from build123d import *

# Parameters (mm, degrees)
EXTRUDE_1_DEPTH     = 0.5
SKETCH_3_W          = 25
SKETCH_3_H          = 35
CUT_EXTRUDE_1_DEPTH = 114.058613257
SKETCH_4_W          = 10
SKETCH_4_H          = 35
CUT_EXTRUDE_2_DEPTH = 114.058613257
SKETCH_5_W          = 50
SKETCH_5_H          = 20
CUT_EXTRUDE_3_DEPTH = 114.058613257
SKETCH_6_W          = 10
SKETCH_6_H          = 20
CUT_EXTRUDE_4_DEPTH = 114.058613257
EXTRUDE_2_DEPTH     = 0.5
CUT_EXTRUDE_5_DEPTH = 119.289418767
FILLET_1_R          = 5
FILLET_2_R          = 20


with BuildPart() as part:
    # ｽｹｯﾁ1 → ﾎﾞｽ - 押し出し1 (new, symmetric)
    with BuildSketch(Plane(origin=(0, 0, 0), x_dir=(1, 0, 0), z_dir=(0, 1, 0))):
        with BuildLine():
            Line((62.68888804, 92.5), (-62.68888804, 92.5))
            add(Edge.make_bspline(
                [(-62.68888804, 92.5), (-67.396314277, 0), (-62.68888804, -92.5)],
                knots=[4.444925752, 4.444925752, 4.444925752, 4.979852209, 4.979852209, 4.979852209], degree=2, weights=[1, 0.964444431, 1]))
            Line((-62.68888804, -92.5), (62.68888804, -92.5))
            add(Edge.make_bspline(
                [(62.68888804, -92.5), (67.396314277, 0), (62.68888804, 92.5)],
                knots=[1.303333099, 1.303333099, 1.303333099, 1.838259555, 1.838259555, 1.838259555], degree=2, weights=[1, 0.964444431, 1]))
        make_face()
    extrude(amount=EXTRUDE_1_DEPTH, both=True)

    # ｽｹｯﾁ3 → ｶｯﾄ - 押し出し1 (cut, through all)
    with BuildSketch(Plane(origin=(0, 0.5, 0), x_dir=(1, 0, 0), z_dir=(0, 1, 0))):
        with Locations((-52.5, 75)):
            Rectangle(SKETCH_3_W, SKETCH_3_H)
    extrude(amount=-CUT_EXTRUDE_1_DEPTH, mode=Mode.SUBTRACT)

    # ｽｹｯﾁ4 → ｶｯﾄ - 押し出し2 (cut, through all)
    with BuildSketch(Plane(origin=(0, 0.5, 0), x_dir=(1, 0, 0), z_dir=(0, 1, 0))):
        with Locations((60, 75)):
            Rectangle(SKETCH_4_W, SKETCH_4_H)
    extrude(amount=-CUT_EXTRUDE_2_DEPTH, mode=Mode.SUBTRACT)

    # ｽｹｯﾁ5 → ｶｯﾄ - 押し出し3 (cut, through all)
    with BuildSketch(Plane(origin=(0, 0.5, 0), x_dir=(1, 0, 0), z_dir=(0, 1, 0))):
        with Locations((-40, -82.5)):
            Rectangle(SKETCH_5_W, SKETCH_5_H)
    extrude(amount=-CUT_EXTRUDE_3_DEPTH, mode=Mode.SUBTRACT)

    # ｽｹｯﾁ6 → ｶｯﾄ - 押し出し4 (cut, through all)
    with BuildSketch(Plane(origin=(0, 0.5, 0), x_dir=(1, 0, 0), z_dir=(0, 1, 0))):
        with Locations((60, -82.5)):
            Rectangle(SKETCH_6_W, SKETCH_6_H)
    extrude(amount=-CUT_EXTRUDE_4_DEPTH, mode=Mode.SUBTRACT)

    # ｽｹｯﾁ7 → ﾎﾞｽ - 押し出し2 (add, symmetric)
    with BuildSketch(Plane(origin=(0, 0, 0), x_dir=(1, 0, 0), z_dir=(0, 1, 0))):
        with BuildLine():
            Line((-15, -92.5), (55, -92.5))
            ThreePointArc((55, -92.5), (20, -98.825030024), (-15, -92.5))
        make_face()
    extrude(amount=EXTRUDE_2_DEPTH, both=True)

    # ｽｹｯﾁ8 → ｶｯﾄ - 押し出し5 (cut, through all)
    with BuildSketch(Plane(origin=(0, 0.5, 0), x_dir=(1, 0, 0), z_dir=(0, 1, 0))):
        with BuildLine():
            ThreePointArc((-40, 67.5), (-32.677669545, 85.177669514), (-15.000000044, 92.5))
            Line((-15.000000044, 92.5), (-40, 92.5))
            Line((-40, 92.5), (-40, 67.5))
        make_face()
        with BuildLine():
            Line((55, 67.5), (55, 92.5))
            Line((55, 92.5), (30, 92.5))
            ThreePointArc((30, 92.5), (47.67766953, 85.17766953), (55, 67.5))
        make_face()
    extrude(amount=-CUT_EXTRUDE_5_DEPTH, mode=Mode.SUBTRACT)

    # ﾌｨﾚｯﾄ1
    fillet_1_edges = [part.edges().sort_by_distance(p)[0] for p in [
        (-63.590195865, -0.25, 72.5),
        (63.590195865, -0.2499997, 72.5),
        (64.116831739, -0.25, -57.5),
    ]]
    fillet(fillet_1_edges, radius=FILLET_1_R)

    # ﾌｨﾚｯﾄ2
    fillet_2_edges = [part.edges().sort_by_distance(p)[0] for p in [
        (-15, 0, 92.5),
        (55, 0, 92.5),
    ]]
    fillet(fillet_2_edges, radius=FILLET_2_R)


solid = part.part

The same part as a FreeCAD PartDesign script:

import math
import FreeCAD as App
import Part
import Sketcher
from FreeCAD import Vector
Q = App.Units.Quantity


def edges_at(feature, points):
    """Names of the edges that pass closest to the given points."""
    edges = feature.Shape.Edges
    near = lambda p: min(range(len(edges)), key=lambda i: edges[i].distToShape(Part.Vertex(*p))[0])
    return sorted({f"Edge{near(p) + 1}" for p in points})

doc = App.newDocument("Part")
body = doc.addObject("PartDesign::Body", "Body")

# Sketch on XZ plane
sketch1 = doc.addObject("Sketcher::SketchObject", "Sketch")
body.addObject(sketch1)
sketch1.AttachmentSupport = (doc.XZ_Plane, [""])
sketch1.MapMode = "FlatFace"
sketch1.addGeometry([
    Part.LineSegment(Vector(62.688888, -92.5, 0), Vector(-62.688888, -92.5, 0)),
    Part.BSplineCurve([Vector(-62.688888, -92.5, 0), Vector(-67.396314, 0, 0), Vector(-62.688888, 92.5, 0)], [3, 3], [4.444925752, 4.979852209], False, 2, [1, 0.964444431, 1], False),
    Part.LineSegment(Vector(-62.688888, 92.5, 0), Vector(62.688888, 92.5, 0)),
    Part.BSplineCurve([Vector(62.688888, 92.5, 0), Vector(67.396314, 0, 0), Vector(62.688888, -92.5, 0)], [3, 3], [1.303333099, 1.838259555], False, 2, [1, 0.964444431, 1], False),
], False)
sketch1.addConstraint([
    Sketcher.Constraint("Block", 1),
    Sketcher.Constraint("Block", 3),
    Sketcher.Constraint("Coincident", 0, 2, 1, 1),
    Sketcher.Constraint("Coincident", 1, 2, 2, 1),
    Sketcher.Constraint("Coincident", 2, 2, 3, 1),
    Sketcher.Constraint("Coincident", 3, 2, 0, 1),
])
pad1 = doc.addObject("PartDesign::Pad", "Pad")
body.addObject(pad1)
pad1.Profile = sketch1
pad1.Length = 1
pad1.Midplane = True

# Sketch on XZ plane
sketch2 = doc.addObject("Sketcher::SketchObject", "Sketch001")
body.addObject(sketch2)
sketch2.AttachmentSupport = (doc.XZ_Plane, [""])
sketch2.MapMode = "FlatFace"
sketch2.AttachmentOffset = App.Placement(Vector(0, 0, -0.5), App.Rotation())
sketch2.addGeometry([
    Part.LineSegment(Vector(-65, -92, 0), Vector(-65, -58, 0)),
    Part.LineSegment(Vector(-65, -58, 0), Vector(-40, -58, 0)),
    Part.LineSegment(Vector(-40, -58, 0), Vector(-40, -92, 0)),
    Part.LineSegment(Vector(-40, -92, 0), Vector(-65, -92, 0)),
], False)
sketch2.addConstraint([
    Sketcher.Constraint("Coincident", 0, 2, 1, 1),
    Sketcher.Constraint("Coincident", 1, 2, 2, 1),
    Sketcher.Constraint("Coincident", 2, 2, 3, 1),
    Sketcher.Constraint("Coincident", 3, 2, 0, 1),
    Sketcher.Constraint("Vertical", 0),
    Sketcher.Constraint("Horizontal", 1),
    Sketcher.Constraint("Vertical", 2),
    Sketcher.Constraint("Horizontal", 3),
    Sketcher.Constraint("DistanceX", 1, 1, 1, 2, Q("25 mm")),
    Sketcher.Constraint("DistanceY", 0, 1, 0, 2, Q("35 mm")),
    Sketcher.Constraint("DistanceX", 0, 2, -1, 1, Q("65 mm")),
    Sketcher.Constraint("DistanceY", 0, 2, -1, 1, Q("57.5 mm")),
])
pocket1 = doc.addObject("PartDesign::Pocket", "Pocket")
body.addObject(pocket1)
pocket1.Profile = sketch2
pocket1.Type = "ThroughAll"
pocket1.Reversed = True

# Sketch on XZ plane
sketch3 = doc.addObject("Sketcher::SketchObject", "Sketch002")
body.addObject(sketch3)
sketch3.AttachmentSupport = (doc.XZ_Plane, [""])
sketch3.MapMode = "FlatFace"
sketch3.AttachmentOffset = App.Placement(Vector(0, 0, -0.5), App.Rotation())
sketch3.addGeometry([
    Part.LineSegment(Vector(55, -92, 0), Vector(55, -58, 0)),
    Part.LineSegment(Vector(55, -58, 0), Vector(65, -58, 0)),
    Part.LineSegment(Vector(65, -58, 0), Vector(65, -92, 0)),
    Part.LineSegment(Vector(65, -92, 0), Vector(55, -92, 0)),
], False)
sketch3.addConstraint([
    Sketcher.Constraint("Coincident", 0, 2, 1, 1),
    Sketcher.Constraint("Coincident", 1, 2, 2, 1),
    Sketcher.Constraint("Coincident", 2, 2, 3, 1),
    Sketcher.Constraint("Coincident", 3, 2, 0, 1),
    Sketcher.Constraint("Vertical", 0),
    Sketcher.Constraint("Horizontal", 1),
    Sketcher.Constraint("Vertical", 2),
    Sketcher.Constraint("Horizontal", 3),
    Sketcher.Constraint("DistanceX", 1, 1, 1, 2, Q("10 mm")),
    Sketcher.Constraint("DistanceY", 0, 1, 0, 2, Q("35 mm")),
    Sketcher.Constraint("DistanceX", -1, 1, 0, 2, Q("55 mm")),
    Sketcher.Constraint("DistanceY", 0, 2, -1, 1, Q("57.5 mm")),
])
pocket2 = doc.addObject("PartDesign::Pocket", "Pocket001")
body.addObject(pocket2)
pocket2.Profile = sketch3
pocket2.Type = "ThroughAll"
pocket2.Reversed = True

# Sketch on XZ plane
sketch4 = doc.addObject("Sketcher::SketchObject", "Sketch003")
body.addObject(sketch4)
sketch4.AttachmentSupport = (doc.XZ_Plane, [""])
sketch4.MapMode = "FlatFace"
sketch4.AttachmentOffset = App.Placement(Vector(0, 0, -0.5), App.Rotation())
sketch4.addGeometry([
    Part.LineSegment(Vector(-65, 72, 0), Vector(-65, 92, 0)),
    Part.LineSegment(Vector(-65, 92, 0), Vector(-15, 92, 0)),
    Part.LineSegment(Vector(-15, 92, 0), Vector(-15, 72, 0)),
    Part.LineSegment(Vector(-15, 72, 0), Vector(-65, 72, 0)),
], False)
sketch4.addConstraint([
    Sketcher.Constraint("Coincident", 0, 2, 1, 1),
    Sketcher.Constraint("Coincident", 1, 2, 2, 1),
    Sketcher.Constraint("Coincident", 2, 2, 3, 1),
    Sketcher.Constraint("Coincident", 3, 2, 0, 1),
    Sketcher.Constraint("Vertical", 0),
    Sketcher.Constraint("Horizontal", 1),
    Sketcher.Constraint("Vertical", 2),
    Sketcher.Constraint("Horizontal", 3),
    Sketcher.Constraint("DistanceX", 1, 1, 1, 2, Q("50 mm")),
    Sketcher.Constraint("DistanceY", 0, 1, 0, 2, Q("20 mm")),
    Sketcher.Constraint("DistanceX", 0, 2, -1, 1, Q("65 mm")),
    Sketcher.Constraint("DistanceY", -1, 1, 0, 2, Q("92.5 mm")),
])
pocket3 = doc.addObject("PartDesign::Pocket", "Pocket002")
body.addObject(pocket3)
pocket3.Profile = sketch4
pocket3.Type = "ThroughAll"
pocket3.Reversed = True

# Sketch on XZ plane
sketch5 = doc.addObject("Sketcher::SketchObject", "Sketch004")
body.addObject(sketch5)
sketch5.AttachmentSupport = (doc.XZ_Plane, [""])
sketch5.MapMode = "FlatFace"
sketch5.AttachmentOffset = App.Placement(Vector(0, 0, -0.5), App.Rotation())
sketch5.addGeometry([
    Part.LineSegment(Vector(55, 72, 0), Vector(55, 92, 0)),
    Part.LineSegment(Vector(55, 92, 0), Vector(65, 92, 0)),
    Part.LineSegment(Vector(65, 92, 0), Vector(65, 72, 0)),
    Part.LineSegment(Vector(65, 72, 0), Vector(55, 72, 0)),
], False)
sketch5.addConstraint([
    Sketcher.Constraint("Coincident", 0, 2, 1, 1),
    Sketcher.Constraint("Coincident", 1, 2, 2, 1),
    Sketcher.Constraint("Coincident", 2, 2, 3, 1),
    Sketcher.Constraint("Coincident", 3, 2, 0, 1),
    Sketcher.Constraint("Vertical", 0),
    Sketcher.Constraint("Horizontal", 1),
    Sketcher.Constraint("Vertical", 2),
    Sketcher.Constraint("Horizontal", 3),
    Sketcher.Constraint("DistanceX", 1, 1, 1, 2, Q("10 mm")),
    Sketcher.Constraint("DistanceY", 0, 1, 0, 2, Q("20 mm")),
    Sketcher.Constraint("DistanceX", -1, 1, 0, 2, Q("55 mm")),
    Sketcher.Constraint("DistanceY", -1, 1, 0, 2, Q("92.5 mm")),
])
pocket4 = doc.addObject("PartDesign::Pocket", "Pocket003")
body.addObject(pocket4)
pocket4.Profile = sketch5
pocket4.Type = "ThroughAll"
pocket4.Reversed = True

# Sketch on XZ plane
sketch6 = doc.addObject("Sketcher::SketchObject", "Sketch005")
body.addObject(sketch6)
sketch6.AttachmentSupport = (doc.XZ_Plane, [""])
sketch6.MapMode = "FlatFace"
sketch6.addGeometry([
    Part.LineSegment(Vector(55, 92, 0), Vector(-15, 92, 0)),
    Part.ArcOfCircle(Part.Circle(Vector(20, -1, 0), Vector(0, 0, 1), 100), math.radians(70), math.radians(110)),
], False)
sketch6.addConstraint([
    Sketcher.Constraint("Coincident", 0, 1, 1, 1),
    Sketcher.Constraint("Coincident", 1, 2, 0, 2),
    Sketcher.Constraint("Horizontal", 0),
    Sketcher.Constraint("Radius", 1, Q("100 mm")),
    Sketcher.Constraint("DistanceX", 0, 2, 0, 1, Q("70 mm")),
    Sketcher.Constraint("DistanceX", -1, 1, 1, 3, Q("20 mm")),
    Sketcher.Constraint("DistanceY", -1, 1, 0, 1, Q("92.5 mm")),
])
pad2 = doc.addObject("PartDesign::Pad", "Pad001")
body.addObject(pad2)
pad2.Profile = sketch6
pad2.Length = 1
pad2.Midplane = True

# Sketch on XZ plane
sketch7 = doc.addObject("Sketcher::SketchObject", "Sketch006")
body.addObject(sketch7)
sketch7.AttachmentSupport = (doc.XZ_Plane, [""])
sketch7.MapMode = "FlatFace"
sketch7.AttachmentOffset = App.Placement(Vector(0, 0, -0.5), App.Rotation())
sketch7.addGeometry([
    Part.ArcOfCircle(Part.Circle(Vector(-15, -67, 0), Vector(0, 0, 1), 25), math.radians(-180), math.radians(-90)),  # 0
    Part.LineSegment(Vector(-15, -92, 0), Vector(-40, -92, 0)),  # 1
    Part.LineSegment(Vector(-40, -92, 0), Vector(-40, -68, 0)),  # 2
    Part.LineSegment(Vector(55, -68, 0), Vector(55, -92, 0)),  # 3
    Part.LineSegment(Vector(55, -92, 0), Vector(30, -92, 0)),  # 4
    Part.ArcOfCircle(Part.Circle(Vector(30, -68, 0), Vector(0, 0, 1), 25), math.radians(-90), math.radians(0)),  # 5
], False)
sketch7.addConstraint([
    Sketcher.Constraint("Tangent", 0, 2, 1, 1),
    Sketcher.Constraint("Coincident", 1, 2, 2, 1),
    Sketcher.Constraint("Tangent", 2, 2, 0, 1),
    Sketcher.Constraint("Coincident", 3, 2, 4, 1),
    Sketcher.Constraint("Tangent", 4, 2, 5, 1),
    Sketcher.Constraint("Tangent", 5, 2, 3, 1),
    Sketcher.Constraint("Horizontal", 1),
    Sketcher.Constraint("Vertical", 2),
    Sketcher.Constraint("Vertical", 3),
    Sketcher.Constraint("Horizontal", 4),
    Sketcher.Constraint("Equal", 0, 5),
    Sketcher.Constraint("Horizontal", 0, 3, 5, 3),
    Sketcher.Constraint("Radius", 0, Q("25 mm")),
    Sketcher.Constraint("DistanceX", 0, 3, -1, 1, Q("15 mm")),
    Sketcher.Constraint("DistanceX", -1, 1, 5, 3, Q("30 mm")),
    Sketcher.Constraint("DistanceY", 0, 3, -1, 1, Q("67.5 mm")),
])
pocket5 = doc.addObject("PartDesign::Pocket", "Pocket004")
body.addObject(pocket5)
pocket5.Profile = sketch7
pocket5.Type = "ThroughAll"
pocket5.Reversed = True
doc.recompute()

fillet = doc.addObject("PartDesign::Fillet", "Fillet")
body.addObject(fillet)
fillet.Base = (pocket5, edges_at(pocket5, [(-63.59, -0.25, 72.5), (63.59, -0.25, 72.5), (64.117, -0.25, -57.5)]))
fillet.Radius = 5
doc.recompute()

fillet2 = doc.addObject("PartDesign::Fillet", "Fillet001")
body.addObject(fillet2)
fillet2.Base = (fillet, edges_at(fillet, [(-15, 0, 92.5), (55, 0, 92.5)]))
fillet2.Radius = 20

doc.recompute()
